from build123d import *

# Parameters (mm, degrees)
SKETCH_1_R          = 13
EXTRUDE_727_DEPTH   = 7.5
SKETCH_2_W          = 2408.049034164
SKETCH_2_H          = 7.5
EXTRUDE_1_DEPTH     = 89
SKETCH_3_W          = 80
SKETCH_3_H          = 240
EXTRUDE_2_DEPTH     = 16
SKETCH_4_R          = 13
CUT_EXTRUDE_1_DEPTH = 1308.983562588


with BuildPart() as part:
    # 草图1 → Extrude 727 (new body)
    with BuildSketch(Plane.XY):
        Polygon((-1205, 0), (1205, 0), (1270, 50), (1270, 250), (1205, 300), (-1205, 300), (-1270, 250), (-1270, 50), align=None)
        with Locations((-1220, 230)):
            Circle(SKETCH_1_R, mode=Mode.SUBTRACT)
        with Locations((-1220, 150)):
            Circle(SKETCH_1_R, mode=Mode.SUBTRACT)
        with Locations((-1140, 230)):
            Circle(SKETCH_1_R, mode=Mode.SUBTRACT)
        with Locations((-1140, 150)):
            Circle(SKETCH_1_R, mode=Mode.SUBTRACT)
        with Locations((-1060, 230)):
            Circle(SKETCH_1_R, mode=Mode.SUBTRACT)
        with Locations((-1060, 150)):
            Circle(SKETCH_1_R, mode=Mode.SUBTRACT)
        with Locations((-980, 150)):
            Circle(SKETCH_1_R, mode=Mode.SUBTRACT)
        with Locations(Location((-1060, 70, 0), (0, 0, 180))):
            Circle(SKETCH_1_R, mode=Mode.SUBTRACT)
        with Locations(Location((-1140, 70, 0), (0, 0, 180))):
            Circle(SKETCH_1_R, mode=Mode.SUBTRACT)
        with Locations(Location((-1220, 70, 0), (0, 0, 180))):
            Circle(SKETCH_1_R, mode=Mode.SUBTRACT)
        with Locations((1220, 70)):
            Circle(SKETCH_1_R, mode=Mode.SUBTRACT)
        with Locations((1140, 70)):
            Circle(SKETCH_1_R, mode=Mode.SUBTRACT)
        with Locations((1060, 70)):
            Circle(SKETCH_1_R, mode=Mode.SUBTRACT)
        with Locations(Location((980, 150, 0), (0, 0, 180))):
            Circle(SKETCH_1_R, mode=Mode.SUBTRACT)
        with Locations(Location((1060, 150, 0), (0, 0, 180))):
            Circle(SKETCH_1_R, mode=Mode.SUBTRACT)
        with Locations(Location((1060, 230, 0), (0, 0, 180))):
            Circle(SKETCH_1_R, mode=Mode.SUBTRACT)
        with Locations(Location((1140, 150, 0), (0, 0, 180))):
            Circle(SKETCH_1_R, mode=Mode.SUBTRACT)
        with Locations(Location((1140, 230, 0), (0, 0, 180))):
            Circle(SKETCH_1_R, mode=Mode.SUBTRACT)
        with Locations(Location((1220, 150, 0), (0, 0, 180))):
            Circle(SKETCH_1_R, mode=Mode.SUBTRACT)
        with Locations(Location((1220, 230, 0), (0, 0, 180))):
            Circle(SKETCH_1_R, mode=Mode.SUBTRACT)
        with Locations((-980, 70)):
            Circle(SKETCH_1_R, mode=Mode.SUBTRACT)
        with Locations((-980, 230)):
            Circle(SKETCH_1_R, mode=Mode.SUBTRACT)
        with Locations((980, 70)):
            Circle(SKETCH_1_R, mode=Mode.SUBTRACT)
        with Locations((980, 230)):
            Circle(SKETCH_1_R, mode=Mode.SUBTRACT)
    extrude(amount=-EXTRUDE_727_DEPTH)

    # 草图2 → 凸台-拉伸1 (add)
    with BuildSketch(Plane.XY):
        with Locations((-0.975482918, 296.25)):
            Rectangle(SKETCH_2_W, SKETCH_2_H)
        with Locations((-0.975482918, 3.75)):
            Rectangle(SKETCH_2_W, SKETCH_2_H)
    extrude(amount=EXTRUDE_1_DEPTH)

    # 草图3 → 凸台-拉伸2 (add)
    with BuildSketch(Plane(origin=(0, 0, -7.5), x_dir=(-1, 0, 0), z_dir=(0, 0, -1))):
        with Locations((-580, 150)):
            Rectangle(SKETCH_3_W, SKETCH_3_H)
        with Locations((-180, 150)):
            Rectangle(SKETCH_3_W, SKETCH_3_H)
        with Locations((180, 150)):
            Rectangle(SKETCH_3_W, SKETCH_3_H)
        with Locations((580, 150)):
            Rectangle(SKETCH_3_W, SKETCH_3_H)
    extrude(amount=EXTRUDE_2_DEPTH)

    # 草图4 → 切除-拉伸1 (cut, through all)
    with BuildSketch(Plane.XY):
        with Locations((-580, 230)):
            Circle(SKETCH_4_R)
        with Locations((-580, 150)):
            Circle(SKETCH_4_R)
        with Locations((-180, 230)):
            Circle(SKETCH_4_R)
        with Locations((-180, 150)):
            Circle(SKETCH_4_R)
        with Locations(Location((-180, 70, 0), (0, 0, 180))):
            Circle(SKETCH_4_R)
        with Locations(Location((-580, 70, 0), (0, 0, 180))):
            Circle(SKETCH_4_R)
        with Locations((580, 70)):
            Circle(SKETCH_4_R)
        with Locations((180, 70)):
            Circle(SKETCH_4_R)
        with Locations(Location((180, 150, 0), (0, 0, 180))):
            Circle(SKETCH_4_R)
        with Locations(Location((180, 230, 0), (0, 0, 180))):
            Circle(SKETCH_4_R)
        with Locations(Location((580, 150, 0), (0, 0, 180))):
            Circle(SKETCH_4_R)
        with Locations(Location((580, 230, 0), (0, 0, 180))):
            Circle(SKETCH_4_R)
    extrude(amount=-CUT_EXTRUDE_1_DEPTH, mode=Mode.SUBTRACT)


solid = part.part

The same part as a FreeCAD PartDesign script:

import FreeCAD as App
import Part
import Sketcher
from FreeCAD import Vector

doc = App.newDocument("Part")
body = doc.addObject("PartDesign::Body", "Body")

sketch1 = body.newObject("Sketcher::SketchObject", "Sketch")
sketch1.AttachmentSupport = (doc.getObject("XY_Plane"), [""])
sketch1.MapMode = "FlatFace"
sketch1.addGeometry(Part.LineSegment(Vector(-1205, 0, 0), Vector(1205, 0, 0)), False)
sketch1.addGeometry(Part.LineSegment(Vector(1205, 0, 0), Vector(1270, 50, 0)), False)
sketch1.addGeometry(Part.LineSegment(Vector(1270, 50, 0), Vector(1270, 250, 0)), False)
sketch1.addGeometry(Part.LineSegment(Vector(1270, 250, 0), Vector(1205, 300, 0)), False)
sketch1.addGeometry(Part.LineSegment(Vector(1205, 300, 0), Vector(-1205, 300, 0)), False)
sketch1.addGeometry(Part.LineSegment(Vector(-1205, 300, 0), Vector(-1270, 250, 0)), False)
sketch1.addGeometry(Part.LineSegment(Vector(-1270, 250, 0), Vector(-1270, 50, 0)), False)
sketch1.addGeometry(Part.LineSegment(Vector(-1270, 50, 0), Vector(-1205, 0, 0)), False)
sketch1.addGeometry(Part.Circle(Vector(-1220, 70, 0), Vector(0, 0, 1), 13), False)
sketch1.addGeometry(Part.Circle(Vector(-1140, 70, 0), Vector(0, 0, 1), 13), False)
sketch1.addGeometry(Part.Circle(Vector(-1060, 70, 0), Vector(0, 0, 1), 13), False)
sketch1.addGeometry(Part.Circle(Vector(-980, 70, 0), Vector(0, 0, 1), 13), False)
sketch1.addGeometry(Part.Circle(Vector(980, 70, 0), Vector(0, 0, 1), 13), False)
sketch1.addGeometry(Part.Circle(Vector(1060, 70, 0), Vector(0, 0, 1), 13), False)
sketch1.addGeometry(Part.Circle(Vector(1140, 70, 0), Vector(0, 0, 1), 13), False)
sketch1.addGeometry(Part.Circle(Vector(1220, 70, 0), Vector(0, 0, 1), 13), False)
sketch1.addGeometry(Part.Circle(Vector(-1220, 150, 0), Vector(0, 0, 1), 13), False)
sketch1.addGeometry(Part.Circle(Vector(-1140, 150, 0), Vector(0, 0, 1), 13), False)
sketch1.addGeometry(Part.Circle(Vector(-1060, 150, 0), Vector(0, 0, 1), 13), False)
sketch1.addGeometry(Part.Circle(Vector(-980, 150, 0), Vector(0, 0, 1), 13), False)
sketch1.addGeometry(Part.Circle(Vector(-1220, 230, 0), Vector(0, 0, 1), 13), False)
sketch1.addGeometry(Part.Circle(Vector(-1140, 230, 0), Vector(0, 0, 1), 13), False)
sketch1.addGeometry(Part.Circle(Vector(-1060, 230, 0), Vector(0, 0, 1), 13), False)
sketch1.addGeometry(Part.Circle(Vector(-980, 230, 0), Vector(0, 0, 1), 13), False)
sketch1.addGeometry(Part.Circle(Vector(980, 150, 0), Vector(0, 0, 1), 13), False)
sketch1.addGeometry(Part.Circle(Vector(1060, 150, 0), Vector(0, 0, 1), 13), False)
sketch1.addGeometry(Part.Circle(Vector(1140, 150, 0), Vector(0, 0, 1), 13), False)
sketch1.addGeometry(Part.Circle(Vector(1220, 150, 0), Vector(0, 0, 1), 13), False)
sketch1.addGeometry(Part.Circle(Vector(980, 230, 0), Vector(0, 0, 1), 13), False)
sketch1.addGeometry(Part.Circle(Vector(1060, 230, 0), Vector(0, 0, 1), 13), False)
sketch1.addGeometry(Part.Circle(Vector(1140, 230, 0), Vector(0, 0, 1), 13), False)
sketch1.addGeometry(Part.Circle(Vector(1220, 230, 0), Vector(0, 0, 1), 13), False)
sketch1.addConstraint(Sketcher.Constraint("Coincident", 0, 2, 1, 1))
sketch1.addConstraint(Sketcher.Constraint("Coincident", 1, 2, 2, 1))
sketch1.addConstraint(Sketcher.Constraint("Coincident", 2, 2, 3, 1))
sketch1.addConstraint(Sketcher.Constraint("Coincident", 3, 2, 4, 1))
sketch1.addConstraint(Sketcher.Constraint("Coincident", 4, 2, 5, 1))
sketch1.addConstraint(Sketcher.Constraint("Coincident", 5, 2, 6, 1))
sketch1.addConstraint(Sketcher.Constraint("Coincident", 6, 2, 7, 1))
sketch1.addConstraint(Sketcher.Constraint("Coincident", 7, 2, 0, 1))
sketch1.addConstraint(Sketcher.Constraint("Horizontal", 0))
sketch1.addConstraint(Sketcher.Constraint("Vertical", 2))
sketch1.addConstraint(Sketcher.Constraint("Horizontal", 4))
sketch1.addConstraint(Sketcher.Constraint("Vertical", 6))
sketch1.addConstraint(Sketcher.Constraint("Equal", 8, 9))
sketch1.addConstraint(Sketcher.Constraint("Equal", 9, 10))
sketch1.addConstraint(Sketcher.Constraint("Equal", 10, 11))
sketch1.addConstraint(Sketcher.Constraint("Equal", 11, 12))
sketch1.addConstraint(Sketcher.Constraint("Equal", 12, 13))
sketch1.addConstraint(Sketcher.Constraint("Equal", 13, 14))
sketch1.addConstraint(Sketcher.Constraint("Equal", 14, 15))
sketch1.addConstraint(Sketcher.Constraint("Equal", 15, 16))
sketch1.addConstraint(Sketcher.Constraint("Equal", 16, 17))
sketch1.addConstraint(Sketcher.Constraint("Equal", 17, 18))
sketch1.addConstraint(Sketcher.Constraint("Equal", 18, 19))
sketch1.addConstraint(Sketcher.Constraint("Equal", 19, 20))
sketch1.addConstraint(Sketcher.Constraint("Equal", 20, 21))
sketch1.addConstraint(Sketcher.Constraint("Equal", 21, 22))
sketch1.addConstraint(Sketcher.Constraint("Equal", 22, 23))
sketch1.addConstraint(Sketcher.Constraint("Equal", 23, 24))
sketch1.addConstraint(Sketcher.Constraint("Equal", 24, 25))
sketch1.addConstraint(Sketcher.Constraint("Equal", 25, 26))
sketch1.addConstraint(Sketcher.Constraint("Equal", 26, 27))
sketch1.addConstraint(Sketcher.Constraint("Equal", 27, 28))
sketch1.addConstraint(Sketcher.Constraint("Equal", 28, 29))
sketch1.addConstraint(Sketcher.Constraint("Equal", 29, 30))
sketch1.addConstraint(Sketcher.Constraint("Equal", 30, 31))
sketch1.addConstraint(Sketcher.Constraint("Symmetric", 0, 2, 7, 2, -1, 1))
sketch1.addConstraint(Sketcher.Constraint("Symmetric", 11, 3, 12, 3, -2))
sketch1.addConstraint(Sketcher.Constraint("Symmetric", 10, 3, 13, 3, -2))
sketch1.addConstraint(Sketcher.Constraint("Symmetric", 9, 3, 14, 3, -2))
sketch1.addConstraint(Sketcher.Constraint("Symmetric", 8, 3, 15, 3, -2))
sketch1.addConstraint(Sketcher.Constraint("Symmetric", 19, 3, 24, 3, -2))
sketch1.addConstraint(Sketcher.Constraint("Symmetric", 18, 3, 25, 3, -2))
sketch1.addConstraint(Sketcher.Constraint("Symmetric", 17, 3, 26, 3, -2))
sketch1.addConstraint(Sketcher.Constraint("Symmetric", 16, 3, 27, 3, -2))
sketch1.addConstraint(Sketcher.Constraint("Symmetric", 23, 3, 28, 3, -2))
sketch1.addConstraint(Sketcher.Constraint("Symmetric", 22, 3, 29, 3, -2))
sketch1.addConstraint(Sketcher.Constraint("Symmetric", 21, 3, 30, 3, -2))
sketch1.addConstraint(Sketcher.Constraint("Symmetric", 20, 3, 31, 3, -2))
sketch1.addConstraint(Sketcher.Constraint("Symmetric", 2, 2, 5, 2, -2))
sketch1.addConstraint(Sketcher.Constraint("Parallel", 1, 5))
sketch1.addConstraint(Sketcher.Constraint("Parallel", 3, 7))
sketch1.addConstraint(Sketcher.Constraint("Horizontal", 8, 3, 9, 3))
sketch1.addConstraint(Sketcher.Constraint("Horizontal", 9, 3, 10, 3))
sketch1.addConstraint(Sketcher.Constraint("Horizontal", 10, 3, 11, 3))
sketch1.addConstraint(Sketcher.Constraint("Horizontal", 16, 3, 17, 3))
sketch1.addConstraint(Sketcher.Constraint("Horizontal", 17, 3, 18, 3))
sketch1.addConstraint(Sketcher.Constraint("Horizontal", 18, 3, 19, 3))
sketch1.addConstraint(Sketcher.Constraint("Horizontal", 20, 3, 21, 3))
sketch1.addConstraint(Sketcher.Constraint("Horizontal", 21, 3, 22, 3))
sketch1.addConstraint(Sketcher.Constraint("Horizontal", 22, 3, 23, 3))
sketch1.addConstraint(Sketcher.Constraint("Horizontal", 1, 2, 6, 2))
sketch1.addConstraint(Sketcher.Constraint("Vertical", 8, 3, 16, 3))
sketch1.addConstraint(Sketcher.Constraint("Vertical", 9, 3, 17, 3))
sketch1.addConstraint(Sketcher.Constraint("Vertical", 10, 3, 18, 3))
sketch1.addConstraint(Sketcher.Constraint("Vertical", 11, 3, 19, 3))
sketch1.addConstraint(Sketcher.Constraint("Vertical", 16, 3, 20, 3))
sketch1.addConstraint(Sketcher.Constraint("Vertical", 17, 3, 21, 3))
sketch1.addConstraint(Sketcher.Constraint("Vertical", 18, 3, 22, 3))
sketch1.addConstraint(Sketcher.Constraint("Vertical", 19, 3, 23, 3))
sketch1.addConstraint(Sketcher.Constraint("Vertical", 0, 2, 3, 2))
sketch1.addConstraint(Sketcher.Constraint("Diameter", 8, 26.0))
sketch1.addConstraint(Sketcher.Constraint("DistanceX", 0, 1, 0, 2, 2410.0))
sketch1.addConstraint(Sketcher.Constraint("DistanceY", 2, 1, 2, 2, 200.0))
sketch1.addConstraint(Sketcher.Constraint("DistanceX", 8, 3, -1, 1, 1220.0))
sketch1.addConstraint(Sketcher.Constraint("DistanceY", -1, 1, 8, 3, 70.0))
sketch1.addConstraint(Sketcher.Constraint("DistanceX", 9, 3, -1, 1, 1140.0))
sketch1.addConstraint(Sketcher.Constraint("DistanceX", 10, 3, -1, 1, 1060.0))
sketch1.addConstraint(Sketcher.Constraint("DistanceX", 11, 3, -1, 1, 980.0))
sketch1.addConstraint(Sketcher.Constraint("DistanceY", -1, 1, 16, 3, 150.0))
sketch1.addConstraint(Sketcher.Constraint("DistanceY", -1, 1, 20, 3, 230.0))
sketch1.addConstraint(Sketcher.Constraint("DistanceX", -1, 1, 1, 2, 1270.0))
sketch1.addConstraint(Sketcher.Constraint("DistanceY", -1, 1, 1, 2, 50.0))
pad1 = body.newObject("PartDesign::Pad", "Pad")
pad1.Profile = sketch1
pad1.Length = 7.5
pad1.Reversed = True

sketch2 = body.newObject("Sketcher::SketchObject", "Sketch001")
sketch2.AttachmentSupport = (doc.getObject("XY_Plane"), [""])
sketch2.MapMode = "FlatFace"
sketch2.addGeometry(Part.LineSegment(Vector(-1205, 300, 0), Vector(-1205, 292, 0)), False)
sketch2.addGeometry(Part.LineSegment(Vector(-1205, 292, 0), Vector(1203, 292, 0)), False)
sketch2.addGeometry(Part.LineSegment(Vector(1203, 292, 0), Vector(1203, 300, 0)), False)
sketch2.addGeometry(Part.LineSegment(Vector(1203, 300, 0), Vector(-1205, 300, 0)), False)
sketch2.addGeometry(Part.LineSegment(Vector(-1205, 8, 0), Vector(-1205, 0, 0)), False)
sketch2.addGeometry(Part.LineSegment(Vector(-1205, 0, 0), Vector(1203, 0, 0)), False)
sketch2.addGeometry(Part.LineSegment(Vector(1203, 0, 0), Vector(1203, 8, 0)), False)
sketch2.addGeometry(Part.LineSegment(Vector(1203, 8, 0), Vector(-1205, 8, 0)), False)
sketch2.addConstraint(Sketcher.Constraint("Coincident", 0, 2, 1, 1))
sketch2.addConstraint(Sketcher.Constraint("Coincident", 1, 2, 2, 1))
sketch2.addConstraint(Sketcher.Constraint("Coincident", 2, 2, 3, 1))
sketch2.addConstraint(Sketcher.Constraint("Coincident", 3, 2, 0, 1))
sketch2.addConstraint(Sketcher.Constraint("Coincident", 4, 2, 5, 1))
sketch2.addConstraint(Sketcher.Constraint("Coincident", 5, 2, 6, 1))
sketch2.addConstraint(Sketcher.Constraint("Coincident", 6, 2, 7, 1))
sketch2.addConstraint(Sketcher.Constraint("Coincident", 7, 2, 4, 1))
sketch2.addConstraint(Sketcher.Constraint("Vertical", 0))
sketch2.addConstraint(Sketcher.Constraint("Horizontal", 1))
sketch2.addConstraint(Sketcher.Constraint("Vertical", 2))
sketch2.addConstraint(Sketcher.Constraint("Horizontal", 3))
sketch2.addConstraint(Sketcher.Constraint("Vertical", 4))
sketch2.addConstraint(Sketcher.Constraint("Horizontal", 5))
sketch2.addConstraint(Sketcher.Constraint("Vertical", 6))
sketch2.addConstraint(Sketcher.Constraint("Horizontal", 7))
sketch2.addConstraint(Sketcher.Constraint("PointOnObject", 4, 2, -1))
sketch2.addConstraint(Sketcher.Constraint("Vertical", 3, 2, 4, 2))
sketch2.addConstraint(Sketcher.Constraint("Vertical", 2, 2, 5, 2))
sketch2.addConstraint(Sketcher.Constraint("Equal", 2, 4))
sketch2.addConstraint(Sketcher.Constraint("DistanceY", 0, 2, 0, 1, 7.5))
sketch2.addConstraint(Sketcher.Constraint("DistanceX", 0, 2, -1, 1, 1205.0))
sketch2.addConstraint(Sketcher.Constraint("DistanceY", -1, 1, 2, 2, 300.0))
sketch2.addConstraint(Sketcher.Constraint("DistanceX", 1, 1, 1, 2, 2408.049034))
pad2 = body.newObject("PartDesign::Pad", "Pad001")
pad2.Profile = sketch2
pad2.Length = 89

sketch3 = body.newObject("Sketcher::SketchObject", "Sketch002")
sketch3.AttachmentSupport = (doc.getObject("XY_Plane"), [""])
sketch3.MapMode = "FlatFace"
sketch3.AttachmentOffset = App.Placement(Vector(0, 0, -7.5), App.Rotation())
sketch3.addGeometry(Part.LineSegment(Vector(620, 270, 0), Vector(620, 30, 0)), False)
sketch3.addGeometry(Part.LineSegment(Vector(620, 30, 0), Vector(540, 30, 0)), False)
sketch3.addGeometry(Part.LineSegment(Vector(540, 30, 0), Vector(540, 270, 0)), False)
sketch3.addGeometry(Part.LineSegment(Vector(540, 270, 0), Vector(620, 270, 0)), False)
sketch3.addGeometry(Part.LineSegment(Vector(220, 270, 0), Vector(220, 30, 0)), False)
sketch3.addGeometry(Part.LineSegment(Vector(220, 30, 0), Vector(140, 30, 0)), False)
sketch3.addGeometry(Part.LineSegment(Vector(140, 30, 0), Vector(140, 270, 0)), False)
sketch3.addGeometry(Part.LineSegment(Vector(140, 270, 0), Vector(220, 270, 0)), False)
sketch3.addGeometry(Part.LineSegment(Vector(-140, 270, 0), Vector(-140, 30, 0)), False)
sketch3.addGeometry(Part.LineSegment(Vector(-140, 30, 0), Vector(-220, 30, 0)), False)
sketch3.addGeometry(Part.LineSegment(Vector(-220, 30, 0), Vector(-220, 270, 0)), False)
sketch3.addGeometry(Part.LineSegment(Vector(-220, 270, 0), Vector(-140, 270, 0)), False)
sketch3.addGeometry(Part.LineSegment(Vector(-540, 270, 0), Vector(-540, 30, 0)), False)
sketch3.addGeometry(Part.LineSegment(Vector(-540, 30, 0), Vector(-620, 30, 0)), False)
sketch3.addGeometry(Part.LineSegment(Vector(-620, 30, 0), Vector(-620, 270, 0)), False)
sketch3.addGeometry(Part.LineSegment(Vector(-620, 270, 0), Vector(-540, 270, 0)), False)
sketch3.addConstraint(Sketcher.Constraint("Coincident", 0, 2, 1, 1))
sketch3.addConstraint(Sketcher.Constraint("Coincident", 1, 2, 2, 1))
sketch3.addConstraint(Sketcher.Constraint("Coincident", 2, 2, 3, 1))
sketch3.addConstraint(Sketcher.Constraint("Coincident", 3, 2, 0, 1))
sketch3.addConstraint(Sketcher.Constraint("Coincident", 4, 2, 5, 1))
sketch3.addConstraint(Sketcher.Constraint("Coincident", 5, 2, 6, 1))
sketch3.addConstraint(Sketcher.Constraint("Coincident", 6, 2, 7, 1))
sketch3.addConstraint(Sketcher.Constraint("Coincident", 7, 2, 4, 1))
sketch3.addConstraint(Sketcher.Constraint("Coincident", 8, 2, 9, 1))
sketch3.addConstraint(Sketcher.Constraint("Coincident", 9, 2, 10, 1))
sketch3.addConstraint(Sketcher.Constraint("Coincident", 10, 2, 11, 1))
sketch3.addConstraint(Sketcher.Constraint("Coincident", 11, 2, 8, 1))
sketch3.addConstraint(Sketcher.Constraint("Coincident", 12, 2, 13, 1))
sketch3.addConstraint(Sketcher.Constraint("Coincident", 13, 2, 14, 1))
sketch3.addConstraint(Sketcher.Constraint("Coincident", 14, 2, 15, 1))
sketch3.addConstraint(Sketcher.Constraint("Coincident", 15, 2, 12, 1))
sketch3.addConstraint(Sketcher.Constraint("Vertical", 0))
sketch3.addConstraint(Sketcher.Constraint("Horizontal", 1))
sketch3.addConstraint(Sketcher.Constraint("Vertical", 2))
sketch3.addConstraint(Sketcher.Constraint("Horizontal", 3))
sketch3.addConstraint(Sketcher.Constraint("Vertical", 4))
sketch3.addConstraint(Sketcher.Constraint("Horizontal", 5))
sketch3.addConstraint(Sketcher.Constraint("Vertical", 6))
sketch3.addConstraint(Sketcher.Constraint("Horizontal", 7))
sketch3.addConstraint(Sketcher.Constraint("Vertical", 8))
sketch3.addConstraint(Sketcher.Constraint("Horizontal", 9))
sketch3.addConstraint(Sketcher.Constraint("Vertical", 10))
sketch3.addConstraint(Sketcher.Constraint("Horizontal", 11))
sketch3.addConstraint(Sketcher.Constraint("Vertical", 12))
sketch3.addConstraint(Sketcher.Constraint("Horizontal", 13))
sketch3.addConstraint(Sketcher.Constraint("Vertical", 14))
sketch3.addConstraint(Sketcher.Constraint("Horizontal", 15))
sketch3.addConstraint(Sketcher.Constraint("Symmetric", 5, 2, 8, 2, -2))
sketch3.addConstraint(Sketcher.Constraint("Symmetric", 7, 2, 10, 2, -2))
sketch3.addConstraint(Sketcher.Constraint("Symmetric", 1, 2, 12, 2, -2))
sketch3.addConstraint(Sketcher.Constraint("Symmetric", 3, 2, 14, 2, -2))
sketch3.addConstraint(Sketcher.Constraint("Horizontal", 1, 2, 4, 2))
sketch3.addConstraint(Sketcher.Constraint("Horizontal", 3, 2, 6, 2))
sketch3.addConstraint(Sketcher.Constraint("Equal", 3, 5))
sketch3.addConstraint(Sketcher.Constraint("DistanceX", 1, 2, 1, 1, 80.0))
sketch3.addConstraint(Sketcher.Constraint("DistanceY", 0, 2, 0, 1, 240.0))
sketch3.addConstraint(Sketcher.Constraint("DistanceX", -1, 1, 0, 2, 620.0))
sketch3.addConstraint(Sketcher.Constraint("DistanceY", -1, 1, 0, 2, 30.0))
sketch3.addConstraint(Sketcher.Constraint("DistanceX", -1, 1, 4, 2, 220.0))
pad3 = body.newObject("PartDesign::Pad", "Pad002")
pad3.Profile = sketch3
pad3.Length = 16
pad3.Reversed = True

sketch4 = body.newObject("Sketcher::SketchObject", "Sketch003")
sketch4.AttachmentSupport = (doc.getObject("XY_Plane"), [""])
sketch4.MapMode = "FlatFace"
sketch4.addGeometry(Part.Circle(Vector(-580, 230, 0), Vector(0, 0, 1), 13), False)
sketch4.addGeometry(Part.Circle(Vector(-580, 150, 0), Vector(0, 0, 1), 13), False)
sketch4.addGeometry(Part.Circle(Vector(-180, 230, 0), Vector(0, 0, 1), 13), False)
sketch4.addGeometry(Part.Circle(Vector(-180, 150, 0), Vector(0, 0, 1), 13), False)
sketch4.addGeometry(Part.Circle(Vector(-180, 70, 0), Vector(0, 0, 1), 13), False)
sketch4.addGeometry(Part.Circle(Vector(-580, 70, 0), Vector(0, 0, 1), 13), False)
sketch4.addGeometry(Part.Circle(Vector(580, 70, 0), Vector(0, 0, 1), 13), False)
sketch4.addGeometry(Part.Circle(Vector(180, 70, 0), Vector(0, 0, 1), 13), False)
sketch4.addGeometry(Part.Circle(Vector(180, 150, 0), Vector(0, 0, 1), 13), False)
sketch4.addGeometry(Part.Circle(Vector(180, 230, 0), Vector(0, 0, 1), 13), False)
sketch4.addGeometry(Part.Circle(Vector(580, 150, 0), Vector(0, 0, 1), 13), False)
sketch4.addGeometry(Part.Circle(Vector(580, 230, 0), Vector(0, 0, 1), 13), False)
sketch4.addConstraint(Sketcher.Constraint("Equal", 0, 1))
sketch4.addConstraint(Sketcher.Constraint("Equal", 1, 2))
sketch4.addConstraint(Sketcher.Constraint("Equal", 2, 3))
sketch4.addConstraint(Sketcher.Constraint("Equal", 3, 4))
sketch4.addConstraint(Sketcher.Constraint("Equal", 4, 5))
sketch4.addConstraint(Sketcher.Constraint("Equal", 5, 6))
sketch4.addConstraint(Sketcher.Constraint("Equal", 6, 7))
sketch4.addConstraint(Sketcher.Constraint("Equal", 7, 8))
sketch4.addConstraint(Sketcher.Constraint("Equal", 8, 9))
sketch4.addConstraint(Sketcher.Constraint("Equal", 9, 10))
sketch4.addConstraint(Sketcher.Constraint("Equal", 10, 11))
sketch4.addConstraint(Sketcher.Constraint("Symmetric", 5, 3, 6, 3, -2))
sketch4.addConstraint(Sketcher.Constraint("Symmetric", 4, 3, 7, 3, -2))
sketch4.addConstraint(Sketcher.Constraint("Symmetric", 3, 3, 8, 3, -2))
sketch4.addConstraint(Sketcher.Constraint("Symmetric", 2, 3, 9, 3, -2))
sketch4.addConstraint(Sketcher.Constraint("Symmetric", 1, 3, 10, 3, -2))
sketch4.addConstraint(Sketcher.Constraint("Symmetric", 0, 3, 11, 3, -2))
sketch4.addConstraint(Sketcher.Constraint("Horizontal", 0, 3, 2, 3))
sketch4.addConstraint(Sketcher.Constraint("Horizontal", 1, 3, 3, 3))
sketch4.addConstraint(Sketcher.Constraint("Horizontal", 4, 3, 5, 3))
sketch4.addConstraint(Sketcher.Constraint("Vertical", 0, 3, 1, 3))
sketch4.addConstraint(Sketcher.Constraint("Vertical", 2, 3, 3, 3))
sketch4.addConstraint(Sketcher.Constraint("Vertical", 3, 3, 4, 3))
sketch4.addConstraint(Sketcher.Constraint("Vertical", 1, 3, 5, 3))
sketch4.addConstraint(Sketcher.Constraint("Diameter", 0, 26.0))
sketch4.addConstraint(Sketcher.Constraint("DistanceX", 0, 3, -1, 1, 580.0))
sketch4.addConstraint(Sketcher.Constraint("DistanceY", -1, 1, 0, 3, 230.0))
sketch4.addConstraint(Sketcher.Constraint("DistanceY", -1, 1, 1, 3, 150.0))
sketch4.addConstraint(Sketcher.Constraint("DistanceX", 2, 3, -1, 1, 180.0))
sketch4.addConstraint(Sketcher.Constraint("DistanceY", -1, 1, 4, 3, 70.0))
pocket1 = body.newObject("PartDesign::Pocket", "Pocket")
pocket1.Profile = sketch4
pocket1.Type = "ThroughAll"

doc.recompute()
